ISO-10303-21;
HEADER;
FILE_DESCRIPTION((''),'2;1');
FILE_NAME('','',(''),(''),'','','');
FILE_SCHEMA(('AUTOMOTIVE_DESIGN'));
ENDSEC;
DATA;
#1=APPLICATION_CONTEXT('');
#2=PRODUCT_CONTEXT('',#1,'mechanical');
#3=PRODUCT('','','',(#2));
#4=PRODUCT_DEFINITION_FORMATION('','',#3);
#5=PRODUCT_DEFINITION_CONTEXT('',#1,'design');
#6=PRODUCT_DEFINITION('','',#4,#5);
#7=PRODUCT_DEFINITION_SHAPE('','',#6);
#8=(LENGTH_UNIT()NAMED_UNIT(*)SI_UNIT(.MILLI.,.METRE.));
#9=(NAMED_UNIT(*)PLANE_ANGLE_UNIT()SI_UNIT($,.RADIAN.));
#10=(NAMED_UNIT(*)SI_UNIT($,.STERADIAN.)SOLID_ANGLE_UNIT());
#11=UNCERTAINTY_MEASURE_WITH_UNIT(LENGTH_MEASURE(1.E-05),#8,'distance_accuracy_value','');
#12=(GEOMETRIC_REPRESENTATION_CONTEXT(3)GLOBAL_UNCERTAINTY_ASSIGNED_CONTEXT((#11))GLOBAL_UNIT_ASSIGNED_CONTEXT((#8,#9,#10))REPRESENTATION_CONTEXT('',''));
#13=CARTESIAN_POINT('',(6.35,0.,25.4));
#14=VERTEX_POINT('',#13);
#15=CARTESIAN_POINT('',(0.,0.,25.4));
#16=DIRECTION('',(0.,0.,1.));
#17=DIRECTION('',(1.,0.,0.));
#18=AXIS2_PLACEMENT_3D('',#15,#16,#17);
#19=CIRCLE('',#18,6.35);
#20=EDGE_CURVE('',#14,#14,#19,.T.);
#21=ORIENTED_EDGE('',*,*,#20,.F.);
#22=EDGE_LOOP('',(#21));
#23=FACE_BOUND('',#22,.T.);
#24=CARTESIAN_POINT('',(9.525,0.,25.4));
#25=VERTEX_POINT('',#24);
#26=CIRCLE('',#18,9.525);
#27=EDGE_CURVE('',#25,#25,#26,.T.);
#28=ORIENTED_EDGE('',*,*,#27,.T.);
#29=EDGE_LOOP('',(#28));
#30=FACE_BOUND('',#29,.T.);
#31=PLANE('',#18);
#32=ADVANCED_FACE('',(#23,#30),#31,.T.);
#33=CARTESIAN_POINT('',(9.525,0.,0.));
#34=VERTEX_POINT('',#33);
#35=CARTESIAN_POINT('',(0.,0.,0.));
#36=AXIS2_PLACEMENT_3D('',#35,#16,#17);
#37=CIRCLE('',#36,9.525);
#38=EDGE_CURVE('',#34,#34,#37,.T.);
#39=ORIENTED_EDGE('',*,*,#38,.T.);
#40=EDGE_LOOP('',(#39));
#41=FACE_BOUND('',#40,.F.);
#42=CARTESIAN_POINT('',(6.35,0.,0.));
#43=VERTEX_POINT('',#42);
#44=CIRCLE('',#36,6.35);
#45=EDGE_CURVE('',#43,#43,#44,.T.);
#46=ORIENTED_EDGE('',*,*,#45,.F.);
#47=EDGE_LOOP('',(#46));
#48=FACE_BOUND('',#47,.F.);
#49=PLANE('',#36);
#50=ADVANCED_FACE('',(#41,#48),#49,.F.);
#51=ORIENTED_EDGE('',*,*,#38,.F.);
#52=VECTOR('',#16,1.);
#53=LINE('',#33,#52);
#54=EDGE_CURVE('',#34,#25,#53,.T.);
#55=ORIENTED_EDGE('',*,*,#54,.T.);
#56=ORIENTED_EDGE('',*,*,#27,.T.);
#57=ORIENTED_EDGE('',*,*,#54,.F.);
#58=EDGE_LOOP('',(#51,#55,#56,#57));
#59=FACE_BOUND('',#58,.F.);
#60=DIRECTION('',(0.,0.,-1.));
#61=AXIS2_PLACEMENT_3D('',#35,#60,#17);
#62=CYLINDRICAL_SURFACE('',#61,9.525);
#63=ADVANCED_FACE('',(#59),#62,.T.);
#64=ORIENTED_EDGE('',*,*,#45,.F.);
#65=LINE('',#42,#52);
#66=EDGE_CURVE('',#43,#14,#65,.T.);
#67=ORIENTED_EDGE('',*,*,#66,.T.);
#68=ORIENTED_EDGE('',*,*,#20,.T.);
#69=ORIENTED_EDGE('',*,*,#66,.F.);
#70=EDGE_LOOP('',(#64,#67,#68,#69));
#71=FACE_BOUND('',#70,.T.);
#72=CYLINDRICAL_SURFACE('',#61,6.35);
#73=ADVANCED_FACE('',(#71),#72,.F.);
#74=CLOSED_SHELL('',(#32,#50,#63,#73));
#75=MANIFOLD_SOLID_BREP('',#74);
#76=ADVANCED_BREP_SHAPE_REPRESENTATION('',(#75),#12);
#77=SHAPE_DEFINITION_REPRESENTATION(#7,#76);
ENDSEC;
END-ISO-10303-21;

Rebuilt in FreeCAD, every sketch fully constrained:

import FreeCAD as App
import Part
import Sketcher

V = App.Vector
Q = App.Units.Quantity

doc = App.newDocument("Part")
body = doc.addObject("PartDesign::Body", "Body")

sketch1 = doc.addObject("Sketcher::SketchObject", "Sketch")
body.addObject(sketch1)
sketch1.AttachmentSupport = (doc.XY_Plane, [""])
sketch1.MapMode = "FlatFace"
sketch1.addGeometry([
    Part.Circle(V(0, 0, 0), V(0, 0, 1), 9.525),
    Part.Circle(V(0, 0, 0), V(0, 0, 1), 6.35),
], False)
sketch1.addConstraint([
    Sketcher.Constraint("Coincident", 0, 3, -1, 1),
    Sketcher.Constraint("Coincident", 1, 3, -1, 1),
    Sketcher.Constraint("Diameter", 1, Q("0.5 in")),
    Sketcher.Constraint("Diameter", 0, Q("0.75 in")),
])
pad1 = doc.addObject("PartDesign::Pad", "Pad")
body.addObject(pad1)
pad1.Profile = sketch1
pad1.Length = Q("1 in")

doc.recompute()
